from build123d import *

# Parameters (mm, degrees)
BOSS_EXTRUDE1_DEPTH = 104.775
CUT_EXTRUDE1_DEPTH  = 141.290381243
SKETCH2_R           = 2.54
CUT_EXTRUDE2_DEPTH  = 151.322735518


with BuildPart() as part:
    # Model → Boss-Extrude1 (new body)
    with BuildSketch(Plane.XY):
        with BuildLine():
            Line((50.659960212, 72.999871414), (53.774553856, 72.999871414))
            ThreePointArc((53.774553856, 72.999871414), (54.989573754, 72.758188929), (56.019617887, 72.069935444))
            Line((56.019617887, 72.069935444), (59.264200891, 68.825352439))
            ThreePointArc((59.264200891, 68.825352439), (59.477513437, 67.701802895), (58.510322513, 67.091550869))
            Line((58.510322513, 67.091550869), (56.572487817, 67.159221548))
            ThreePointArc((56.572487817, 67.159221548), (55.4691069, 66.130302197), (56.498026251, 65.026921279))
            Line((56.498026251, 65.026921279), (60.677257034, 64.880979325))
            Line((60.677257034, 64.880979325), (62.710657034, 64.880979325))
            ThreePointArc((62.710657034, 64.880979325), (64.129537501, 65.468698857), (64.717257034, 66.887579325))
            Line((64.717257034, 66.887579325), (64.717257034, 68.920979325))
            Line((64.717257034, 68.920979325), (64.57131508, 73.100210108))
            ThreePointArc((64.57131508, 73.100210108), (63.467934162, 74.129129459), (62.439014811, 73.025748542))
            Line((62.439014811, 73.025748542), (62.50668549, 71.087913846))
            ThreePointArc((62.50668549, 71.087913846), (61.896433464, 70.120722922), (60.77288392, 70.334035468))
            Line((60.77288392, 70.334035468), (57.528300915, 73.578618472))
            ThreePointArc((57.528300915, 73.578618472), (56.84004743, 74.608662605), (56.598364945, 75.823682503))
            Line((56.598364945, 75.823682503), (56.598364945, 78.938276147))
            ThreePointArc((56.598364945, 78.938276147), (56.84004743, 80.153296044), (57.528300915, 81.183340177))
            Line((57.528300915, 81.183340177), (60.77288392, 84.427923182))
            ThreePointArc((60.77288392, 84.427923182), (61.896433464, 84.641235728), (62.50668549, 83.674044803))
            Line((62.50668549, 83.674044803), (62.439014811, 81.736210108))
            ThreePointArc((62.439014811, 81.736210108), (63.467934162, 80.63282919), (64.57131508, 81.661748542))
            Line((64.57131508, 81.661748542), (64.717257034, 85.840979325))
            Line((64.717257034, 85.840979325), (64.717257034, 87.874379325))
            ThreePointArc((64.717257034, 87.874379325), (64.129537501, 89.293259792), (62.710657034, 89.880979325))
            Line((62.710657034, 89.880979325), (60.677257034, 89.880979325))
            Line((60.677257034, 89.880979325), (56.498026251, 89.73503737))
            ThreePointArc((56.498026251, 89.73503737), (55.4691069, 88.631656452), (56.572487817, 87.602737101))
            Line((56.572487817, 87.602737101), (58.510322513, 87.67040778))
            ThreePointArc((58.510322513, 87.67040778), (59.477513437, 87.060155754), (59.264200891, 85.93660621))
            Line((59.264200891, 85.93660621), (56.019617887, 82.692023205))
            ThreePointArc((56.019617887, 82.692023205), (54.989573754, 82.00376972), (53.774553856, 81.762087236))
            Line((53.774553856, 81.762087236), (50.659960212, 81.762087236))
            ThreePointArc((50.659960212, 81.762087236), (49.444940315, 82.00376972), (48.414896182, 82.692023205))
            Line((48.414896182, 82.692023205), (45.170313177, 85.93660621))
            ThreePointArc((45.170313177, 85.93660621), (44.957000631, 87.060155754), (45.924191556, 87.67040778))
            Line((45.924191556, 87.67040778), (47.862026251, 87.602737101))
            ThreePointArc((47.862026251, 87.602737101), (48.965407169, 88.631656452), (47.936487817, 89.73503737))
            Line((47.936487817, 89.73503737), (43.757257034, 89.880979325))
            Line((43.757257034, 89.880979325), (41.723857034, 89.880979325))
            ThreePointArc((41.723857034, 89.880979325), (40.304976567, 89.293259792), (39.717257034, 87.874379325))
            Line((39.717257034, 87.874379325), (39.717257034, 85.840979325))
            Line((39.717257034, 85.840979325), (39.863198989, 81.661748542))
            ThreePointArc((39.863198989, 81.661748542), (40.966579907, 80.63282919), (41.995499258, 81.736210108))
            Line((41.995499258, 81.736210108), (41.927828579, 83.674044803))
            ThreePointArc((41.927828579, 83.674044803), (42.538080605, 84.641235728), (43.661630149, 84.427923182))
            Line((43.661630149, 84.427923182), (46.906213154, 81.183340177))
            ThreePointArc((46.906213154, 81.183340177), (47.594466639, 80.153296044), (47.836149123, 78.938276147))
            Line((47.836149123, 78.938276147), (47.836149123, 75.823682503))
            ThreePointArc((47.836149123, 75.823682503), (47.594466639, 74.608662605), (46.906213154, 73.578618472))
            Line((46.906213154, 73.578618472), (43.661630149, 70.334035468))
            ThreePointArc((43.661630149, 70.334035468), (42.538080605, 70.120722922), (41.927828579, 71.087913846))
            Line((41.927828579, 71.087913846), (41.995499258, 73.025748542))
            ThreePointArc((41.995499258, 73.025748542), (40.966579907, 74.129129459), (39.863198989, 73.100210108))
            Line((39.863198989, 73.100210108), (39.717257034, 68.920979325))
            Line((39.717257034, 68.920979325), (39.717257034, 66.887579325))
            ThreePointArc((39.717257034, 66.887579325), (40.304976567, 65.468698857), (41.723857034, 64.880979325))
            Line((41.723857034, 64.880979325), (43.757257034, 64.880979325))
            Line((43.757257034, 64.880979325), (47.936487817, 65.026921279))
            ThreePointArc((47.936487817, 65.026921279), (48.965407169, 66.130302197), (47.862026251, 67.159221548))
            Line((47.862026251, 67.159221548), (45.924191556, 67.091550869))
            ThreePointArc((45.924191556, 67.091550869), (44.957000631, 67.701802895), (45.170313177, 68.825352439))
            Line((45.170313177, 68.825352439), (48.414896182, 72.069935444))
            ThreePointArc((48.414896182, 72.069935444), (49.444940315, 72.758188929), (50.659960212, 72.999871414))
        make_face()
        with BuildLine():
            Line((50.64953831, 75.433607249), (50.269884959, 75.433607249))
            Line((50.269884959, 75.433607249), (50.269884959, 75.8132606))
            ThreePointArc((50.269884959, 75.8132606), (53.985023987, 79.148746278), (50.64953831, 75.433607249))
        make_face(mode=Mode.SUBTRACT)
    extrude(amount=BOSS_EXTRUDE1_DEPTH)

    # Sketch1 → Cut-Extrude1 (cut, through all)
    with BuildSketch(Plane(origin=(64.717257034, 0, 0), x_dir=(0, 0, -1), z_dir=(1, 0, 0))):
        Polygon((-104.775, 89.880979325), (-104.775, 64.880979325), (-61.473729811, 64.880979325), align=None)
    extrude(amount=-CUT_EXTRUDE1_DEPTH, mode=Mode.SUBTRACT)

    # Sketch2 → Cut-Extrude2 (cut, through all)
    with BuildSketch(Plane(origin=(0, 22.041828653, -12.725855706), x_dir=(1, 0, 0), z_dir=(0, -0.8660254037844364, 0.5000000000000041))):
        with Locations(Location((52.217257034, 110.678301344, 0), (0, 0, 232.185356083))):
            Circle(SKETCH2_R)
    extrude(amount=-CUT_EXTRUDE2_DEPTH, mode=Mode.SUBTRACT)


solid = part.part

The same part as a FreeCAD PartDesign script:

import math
import FreeCAD as App
import Part
import Sketcher
from FreeCAD import Vector
Q = App.Units.Quantity

doc = App.newDocument("Part")
params = doc.addObject("Spreadsheet::Sheet", "Params")
for row, (alias, value) in enumerate([
    ("sketch1_radius", "0.04 in"),
    ("sketch1_radius2", "0.125 in"),
    ("sketch1_radius3", "0.042 in"),
    ("sketch1_radius4", "0.079 in"),
    ("pad1_length", "4.125 in"),
    ("sketch3_diameter", "0.2 in"),
], start=1):
    params.set(f"A{row}", alias)
    params.set(f"B{row}", "=" + value)
    params.setAlias(f"B{row}", alias)

body = doc.addObject("PartDesign::Body", "Body")

sketch1 = body.newObject("Sketcher::SketchObject", "Sketch")
sketch1.AttachmentSupport = (doc.getObject("XY_Plane"), [""])
sketch1.MapMode = "FlatFace"
sketch1.addGeometry(Part.LineSegment(Vector(50.65996, 72.999871, 0), Vector(53.774554, 72.999871, 0)), False)
sketch1.addGeometry(Part.ArcOfCircle(Part.Circle(Vector(53.774554, 69.824871, 0), Vector(0, 0, 1), 3.175), math.radians(45), math.radians(90)), False)
sketch1.addGeometry(Part.LineSegment(Vector(56.019618, 72.069935, 0), Vector(59.264201, 68.825352, 0)), False)
sketch1.addGeometry(Part.ArcOfCircle(Part.Circle(Vector(58.54578, 68.106932, 0), Vector(0, 0, 1), 1.016), math.radians(-92), math.radians(45)), False)
sketch1.addGeometry(Part.LineSegment(Vector(58.510323, 67.091551, 0), Vector(56.572488, 67.159222, 0)), False)
sketch1.addGeometry(Part.ArcOfCircle(Part.Circle(Vector(56.535257, 66.093071, 0), Vector(0, 0, 1), 1.0668), math.radians(88), math.radians(268)), False)
sketch1.addGeometry(Part.LineSegment(Vector(56.498026, 65.026921, 0), Vector(60.677257, 64.880979, 0)), False)
sketch1.addGeometry(Part.LineSegment(Vector(60.677257, 64.880979, 0), Vector(62.710657, 64.880979, 0)), False)
sketch1.addGeometry(Part.ArcOfCircle(Part.Circle(Vector(62.710657, 66.887579, 0), Vector(0, 0, 1), 2.0066), math.radians(-90), math.radians(0)), False)
sketch1.addGeometry(Part.LineSegment(Vector(64.717257, 66.887579, 0), Vector(64.717257, 68.920979, 0)), False)
sketch1.addGeometry(Part.LineSegment(Vector(64.717257, 68.920979, 0), Vector(64.571315, 73.10021, 0)), False)
sketch1.addGeometry(Part.ArcOfCircle(Part.Circle(Vector(63.505165, 73.062979, 0), Vector(0, 0, 1), 1.0668), math.radians(2), math.radians(182)), False)
sketch1.addGeometry(Part.LineSegment(Vector(62.439015, 73.025749, 0), Vector(62.506685, 71.087914, 0)), False)
sketch1.addGeometry(Part.ArcOfCircle(Part.Circle(Vector(61.491304, 71.052456, 0), Vector(0, 0, 1), 1.016), math.radians(-135), math.radians(2)), False)
sketch1.addGeometry(Part.LineSegment(Vector(60.772884, 70.334035, 0), Vector(57.528301, 73.578618, 0)), False)
sketch1.addGeometry(Part.ArcOfCircle(Part.Circle(Vector(59.773365, 75.823683, 0), Vector(0, 0, 1), 3.175), math.radians(-180), math.radians(-135)), False)
sketch1.addGeometry(Part.LineSegment(Vector(56.598365, 75.823683, 0), Vector(56.598365, 78.938276, 0)), False)
sketch1.addGeometry(Part.ArcOfCircle(Part.Circle(Vector(59.773365, 78.938276, 0), Vector(0, 0, 1), 3.175), math.radians(135), math.radians(180)), False)
sketch1.addGeometry(Part.LineSegment(Vector(57.528301, 81.18334, 0), Vector(60.772884, 84.427923, 0)), False)
sketch1.addGeometry(Part.ArcOfCircle(Part.Circle(Vector(61.491304, 83.709503, 0), Vector(0, 0, 1), 1.016), math.radians(-2), math.radians(135)), False)
sketch1.addGeometry(Part.LineSegment(Vector(62.506685, 83.674045, 0), Vector(62.439015, 81.73621, 0)), False)
sketch1.addGeometry(Part.ArcOfCircle(Part.Circle(Vector(63.505165, 81.698979, 0), Vector(0, 0, 1), 1.0668), math.radians(178), math.radians(358)), False)
sketch1.addGeometry(Part.LineSegment(Vector(64.571315, 81.661749, 0), Vector(64.717257, 85.840979, 0)), False)
sketch1.addGeometry(Part.LineSegment(Vector(64.717257, 85.840979, 0), Vector(64.717257, 87.874379, 0)), False)
sketch1.addGeometry(Part.ArcOfCircle(Part.Circle(Vector(62.710657, 87.874379, 0), Vector(0, 0, 1), 2.0066), math.radians(0), math.radians(90)), False)
sketch1.addGeometry(Part.LineSegment(Vector(62.710657, 89.880979, 0), Vector(60.677257, 89.880979, 0)), False)
sketch1.addGeometry(Part.LineSegment(Vector(60.677257, 89.880979, 0), Vector(56.498026, 89.735037, 0)), False)
sketch1.addGeometry(Part.ArcOfCircle(Part.Circle(Vector(56.535257, 88.668887, 0), Vector(0, 0, 1), 1.0668), math.radians(92), math.radians(272)), False)
sketch1.addGeometry(Part.LineSegment(Vector(56.572488, 87.602737, 0), Vector(58.510323, 87.670408, 0)), False)
sketch1.addGeometry(Part.ArcOfCircle(Part.Circle(Vector(58.54578, 86.655027, 0), Vector(0, 0, 1), 1.016), math.radians(-45), math.radians(92)), False)
sketch1.addGeometry(Part.LineSegment(Vector(59.264201, 85.936606, 0), Vector(56.019618, 82.692023, 0)), False)
sketch1.addGeometry(Part.ArcOfCircle(Part.Circle(Vector(53.774554, 84.937087, 0), Vector(0, 0, 1), 3.175), math.radians(-90), math.radians(-45)), False)
sketch1.addGeometry(Part.LineSegment(Vector(53.774554, 81.762087, 0), Vector(50.65996, 81.762087, 0)), False)
sketch1.addGeometry(Part.ArcOfCircle(Part.Circle(Vector(50.65996, 84.937087, 0), Vector(0, 0, 1), 3.175), math.radians(-135), math.radians(-90)), False)
sketch1.addGeometry(Part.LineSegment(Vector(48.414896, 82.692023, 0), Vector(45.170313, 85.936606, 0)), False)
sketch1.addGeometry(Part.ArcOfCircle(Part.Circle(Vector(45.888734, 86.655027, 0), Vector(0, 0, 1), 1.016), math.radians(88), math.radians(225)), False)
sketch1.addGeometry(Part.LineSegment(Vector(45.924192, 87.670408, 0), Vector(47.862026, 87.602737, 0)), False)
sketch1.addGeometry(Part.ArcOfCircle(Part.Circle(Vector(47.899257, 88.668887, 0), Vector(0, 0, 1), 1.0668), math.radians(-92), math.radians(88)), False)
sketch1.addGeometry(Part.LineSegment(Vector(47.936488, 89.735037, 0), Vector(43.757257, 89.880979, 0)), False)
sketch1.addGeometry(Part.LineSegment(Vector(43.757257, 89.880979, 0), Vector(41.723857, 89.880979, 0)), False)
sketch1.addGeometry(Part.ArcOfCircle(Part.Circle(Vector(41.723857, 87.874379, 0), Vector(0, 0, 1), 2.0066), math.radians(90), math.radians(180)), False)
sketch1.addGeometry(Part.LineSegment(Vector(39.717257, 87.874379, 0), Vector(39.717257, 85.840979, 0)), False)
sketch1.addGeometry(Part.LineSegment(Vector(39.717257, 85.840979, 0), Vector(39.863199, 81.661749, 0)), False)
sketch1.addGeometry(Part.ArcOfCircle(Part.Circle(Vector(40.929349, 81.698979, 0), Vector(0, 0, 1), 1.0668), math.radians(-178), math.radians(2)), False)
sketch1.addGeometry(Part.LineSegment(Vector(41.995499, 81.73621, 0), Vector(41.927829, 83.674045, 0)), False)
sketch1.addGeometry(Part.ArcOfCircle(Part.Circle(Vector(42.94321, 83.709503, 0), Vector(0, 0, 1), 1.016), math.radians(45), math.radians(182)), False)
sketch1.addGeometry(Part.LineSegment(Vector(43.66163, 84.427923, 0), Vector(46.906213, 81.18334, 0)), False)
sketch1.addGeometry(Part.ArcOfCircle(Part.Circle(Vector(44.661149, 78.938276, 0), Vector(0, 0, 1), 3.175), math.radians(0), math.radians(45)), False)
sketch1.addGeometry(Part.LineSegment(Vector(47.836149, 78.938276, 0), Vector(47.836149, 75.823683, 0)), False)
sketch1.addGeometry(Part.ArcOfCircle(Part.Circle(Vector(44.661149, 75.823683, 0), Vector(0, 0, 1), 3.175), math.radians(-45), math.radians(0)), False)
sketch1.addGeometry(Part.LineSegment(Vector(46.906213, 73.578618, 0), Vector(43.66163, 70.334035, 0)), False)
sketch1.addGeometry(Part.ArcOfCircle(Part.Circle(Vector(42.94321, 71.052456, 0), Vector(0, 0, 1), 1.016), math.radians(178), math.radians(315)), False)
sketch1.addGeometry(Part.LineSegment(Vector(41.927829, 71.087914, 0), Vector(41.995499, 73.025749, 0)), False)
sketch1.addGeometry(Part.ArcOfCircle(Part.Circle(Vector(40.929349, 73.062979, 0), Vector(0, 0, 1), 1.0668), math.radians(-2), math.radians(178)), False)
sketch1.addGeometry(Part.LineSegment(Vector(39.863199, 73.10021, 0), Vector(39.717257, 68.920979, 0)), False)
sketch1.addGeometry(Part.LineSegment(Vector(39.717257, 68.920979, 0), Vector(39.717257, 66.887579, 0)), False)
sketch1.addGeometry(Part.ArcOfCircle(Part.Circle(Vector(41.723857, 66.887579, 0), Vector(0, 0, 1), 2.0066), math.radians(180), math.radians(270)), False)
sketch1.addGeometry(Part.LineSegment(Vector(41.723857, 64.880979, 0), Vector(43.757257, 64.880979, 0)), False)
sketch1.addGeometry(Part.LineSegment(Vector(43.757257, 64.880979, 0), Vector(47.936488, 65.026921, 0)), False)
sketch1.addGeometry(Part.ArcOfCircle(Part.Circle(Vector(47.899257, 66.093071, 0), Vector(0, 0, 1), 1.0668), math.radians(-88), math.radians(92)), False)
sketch1.addGeometry(Part.LineSegment(Vector(47.862026, 67.159222, 0), Vector(45.924192, 67.091551, 0)), False)
sketch1.addGeometry(Part.ArcOfCircle(Part.Circle(Vector(45.888734, 68.106932, 0), Vector(0, 0, 1), 1.016), math.radians(135), math.radians(272)), False)
sketch1.addGeometry(Part.LineSegment(Vector(45.170313, 68.825352, 0), Vector(48.414896, 72.069935, 0)), False)
sketch1.addGeometry(Part.ArcOfCircle(Part.Circle(Vector(50.65996, 69.824871, 0), Vector(0, 0, 1), 3.175), math.radians(90), math.radians(135)), False)
sketch1.addGeometry(Part.ArcOfCircle(Part.Circle(Vector(52.217257, 77.380979, 0), Vector(0, 0, 1), 2.5), math.radians(-128.835568), math.radians(218.835568)), False)
sketch1.addGeometry(Part.LineSegment(Vector(50.649538, 75.433607, 0), Vector(50.269885, 75.433607, 0)), False)
sketch1.addGeometry(Part.LineSegment(Vector(50.269885, 75.433607, 0), Vector(50.269885, 75.813261, 0)), False)
sketch1.addConstraint(Sketcher.Constraint("Tangent", 0, 2, 1, 2))
sketch1.addConstraint(Sketcher.Constraint("Tangent", 1, 1, 2, 1))
sketch1.addConstraint(Sketcher.Constraint("Tangent", 2, 2, 3, 2))
sketch1.addConstraint(Sketcher.Constraint("Tangent", 3, 1, 4, 1))
sketch1.addConstraint(Sketcher.Constraint("Tangent", 4, 2, 5, 1))
sketch1.addConstraint(Sketcher.Constraint("Tangent", 5, 2, 6, 1))
sketch1.addConstraint(Sketcher.Constraint("Coincident", 6, 2, 7, 1))
sketch1.addConstraint(Sketcher.Constraint("Tangent", 7, 2, 8, 1))
sketch1.addConstraint(Sketcher.Constraint("Tangent", 8, 2, 9, 1))
sketch1.addConstraint(Sketcher.Constraint("Coincident", 9, 2, 10, 1))
sketch1.addConstraint(Sketcher.Constraint("Tangent", 10, 2, 11, 1))
sketch1.addConstraint(Sketcher.Constraint("Tangent", 11, 2, 12, 1))
sketch1.addConstraint(Sketcher.Constraint("Tangent", 12, 2, 13, 2))
sketch1.addConstraint(Sketcher.Constraint("Tangent", 13, 1, 14, 1))
sketch1.addConstraint(Sketcher.Constraint("Tangent", 14, 2, 15, 2))
sketch1.addConstraint(Sketcher.Constraint("Tangent", 15, 1, 16, 1))
sketch1.addConstraint(Sketcher.Constraint("Tangent", 16, 2, 17, 2))
sketch1.addConstraint(Sketcher.Constraint("Tangent", 17, 1, 18, 1))
sketch1.addConstraint(Sketcher.Constraint("Tangent", 18, 2, 19, 2))
sketch1.addConstraint(Sketcher.Constraint("Tangent", 19, 1, 20, 1))
sketch1.addConstraint(Sketcher.Constraint("Tangent", 20, 2, 21, 1))
sketch1.addConstraint(Sketcher.Constraint("Tangent", 21, 2, 22, 1))
sketch1.addConstraint(Sketcher.Constraint("Coincident", 22, 2, 23, 1))
sketch1.addConstraint(Sketcher.Constraint("Tangent", 23, 2, 24, 1))
sketch1.addConstraint(Sketcher.Constraint("Tangent", 24, 2, 25, 1))
sketch1.addConstraint(Sketcher.Constraint("Coincident", 25, 2, 26, 1))
sketch1.addConstraint(Sketcher.Constraint("Tangent", 26, 2, 27, 1))
sketch1.addConstraint(Sketcher.Constraint("Tangent", 27, 2, 28, 1))
sketch1.addConstraint(Sketcher.Constraint("Tangent", 28, 2, 29, 2))
sketch1.addConstraint(Sketcher.Constraint("Tangent", 29, 1, 30, 1))
sketch1.addConstraint(Sketcher.Constraint("Tangent", 30, 2, 31, 2))
sketch1.addConstraint(Sketcher.Constraint("Tangent", 31, 1, 32, 1))
sketch1.addConstraint(Sketcher.Constraint("Tangent", 32, 2, 33, 2))
sketch1.addConstraint(Sketcher.Constraint("Tangent", 33, 1, 34, 1))
sketch1.addConstraint(Sketcher.Constraint("Tangent", 34, 2, 35, 2))
sketch1.addConstraint(Sketcher.Constraint("Tangent", 35, 1, 36, 1))
sketch1.addConstraint(Sketcher.Constraint("Tangent", 36, 2, 37, 1))
sketch1.addConstraint(Sketcher.Constraint("Tangent", 37, 2, 38, 1))
sketch1.addConstraint(Sketcher.Constraint("Coincident", 38, 2, 39, 1))
sketch1.addConstraint(Sketcher.Constraint("Tangent", 39, 2, 40, 1))
sketch1.addConstraint(Sketcher.Constraint("Tangent", 40, 2, 41, 1))
sketch1.addConstraint(Sketcher.Constraint("Coincident", 41, 2, 42, 1))
sketch1.addConstraint(Sketcher.Constraint("Tangent", 42, 2, 43, 1))
sketch1.addConstraint(Sketcher.Constraint("Tangent", 43, 2, 44, 1))
sketch1.addConstraint(Sketcher.Constraint("Tangent", 44, 2, 45, 2))
sketch1.addConstraint(Sketcher.Constraint("Tangent", 45, 1, 46, 1))
sketch1.addConstraint(Sketcher.Constraint("Tangent", 46, 2, 47, 2))
sketch1.addConstraint(Sketcher.Constraint("Tangent", 47, 1, 48, 1))
sketch1.addConstraint(Sketcher.Constraint("Tangent", 48, 2, 49, 2))
sketch1.addConstraint(Sketcher.Constraint("Tangent", 49, 1, 50, 1))
sketch1.addConstraint(Sketcher.Constraint("Tangent", 50, 2, 51, 2))
sketch1.addConstraint(Sketcher.Constraint("Tangent", 51, 1, 52, 1))
sketch1.addConstraint(Sketcher.Constraint("Tangent", 52, 2, 53, 1))
sketch1.addConstraint(Sketcher.Constraint("Tangent", 53, 2, 54, 1))
sketch1.addConstraint(Sketcher.Constraint("Coincident", 54, 2, 55, 1))
sketch1.addConstraint(Sketcher.Constraint("Tangent", 55, 2, 56, 1))
sketch1.addConstraint(Sketcher.Constraint("Tangent", 56, 2, 57, 1))
sketch1.addConstraint(Sketcher.Constraint("Coincident", 57, 2, 58, 1))
sketch1.addConstraint(Sketcher.Constraint("Tangent", 58, 2, 59, 1))
sketch1.addConstraint(Sketcher.Constraint("Tangent", 59, 2, 60, 1))
sketch1.addConstraint(Sketcher.Constraint("Tangent", 60, 2, 61, 2))
sketch1.addConstraint(Sketcher.Constraint("Tangent", 61, 1, 62, 1))
sketch1.addConstraint(Sketcher.Constraint("Tangent", 62, 2, 63, 2))
sketch1.addConstraint(Sketcher.Constraint("Tangent", 63, 1, 0, 1))
sketch1.addConstraint(Sketcher.Constraint("Coincident", 64, 1, 65, 1))
sketch1.addConstraint(Sketcher.Constraint("Coincident", 65, 2, 66, 1))
sketch1.addConstraint(Sketcher.Constraint("Coincident", 66, 2, 64, 2))
sketch1.addConstraint(Sketcher.Constraint("Horizontal", 0))
sketch1.addConstraint(Sketcher.Constraint("Horizontal", 7))
sketch1.addConstraint(Sketcher.Constraint("Vertical", 9))
sketch1.addConstraint(Sketcher.Constraint("Vertical", 16))
sketch1.addConstraint(Sketcher.Constraint("Vertical", 23))
sketch1.addConstraint(Sketcher.Constraint("Horizontal", 25))
sketch1.addConstraint(Sketcher.Constraint("Horizontal", 32))
sketch1.addConstraint(Sketcher.Constraint("Horizontal", 39))
sketch1.addConstraint(Sketcher.Constraint("Vertical", 41))
sketch1.addConstraint(Sketcher.Constraint("Vertical", 48))
sketch1.addConstraint(Sketcher.Constraint("Vertical", 55))
sketch1.addConstraint(Sketcher.Constraint("Horizontal", 57))
sketch1.addConstraint(Sketcher.Constraint("Horizontal", 65))
sketch1.addConstraint(Sketcher.Constraint("Vertical", 66))
sketch1.addConstraint(Sketcher.Constraint("Equal", 5, 11))
sketch1.addConstraint(Sketcher.Constraint("Equal", 3, 13))
sketch1.addConstraint(Sketcher.Constraint("Equal", 1, 15))
sketch1.addConstraint(Sketcher.Constraint("Equal", 15, 17))
sketch1.addConstraint(Sketcher.Constraint("Equal", 13, 19))
sketch1.addConstraint(Sketcher.Constraint("Equal", 11, 21))
sketch1.addConstraint(Sketcher.Constraint("Equal", 8, 24))
sketch1.addConstraint(Sketcher.Constraint("Equal", 21, 27))
sketch1.addConstraint(Sketcher.Constraint("Equal", 19, 29))
sketch1.addConstraint(Sketcher.Constraint("Equal", 17, 31))
sketch1.addConstraint(Sketcher.Constraint("Equal", 31, 33))
sketch1.addConstraint(Sketcher.Constraint("Equal", 29, 35))
sketch1.addConstraint(Sketcher.Constraint("Equal", 27, 37))
sketch1.addConstraint(Sketcher.Constraint("Equal", 24, 40))
sketch1.addConstraint(Sketcher.Constraint("Equal", 37, 43))
sketch1.addConstraint(Sketcher.Constraint("Equal", 35, 45))
sketch1.addConstraint(Sketcher.Constraint("Equal", 33, 47))
sketch1.addConstraint(Sketcher.Constraint("Equal", 47, 49))
sketch1.addConstraint(Sketcher.Constraint("Equal", 45, 51))
sketch1.addConstraint(Sketcher.Constraint("Equal", 43, 53))
sketch1.addConstraint(Sketcher.Constraint("Equal", 40, 56))
sketch1.addConstraint(Sketcher.Constraint("Equal", 53, 59))
sketch1.addConstraint(Sketcher.Constraint("Equal", 51, 61))
sketch1.addConstraint(Sketcher.Constraint("Equal", 49, 63))
sketch1.addConstraint(Sketcher.Constraint("Parallel", 4, 6))
sketch1.addConstraint(Sketcher.Constraint("Parallel", 10, 12))
sketch1.addConstraint(Sketcher.Constraint("Parallel", 2, 14))
sketch1.addConstraint(Sketcher.Constraint("Perpendicular", 14, 18))
sketch1.addConstraint(Sketcher.Constraint("Perpendicular", 6, 20))
sketch1.addConstraint(Sketcher.Constraint("Parallel", 20, 22))
sketch1.addConstraint(Sketcher.Constraint("Perpendicular", 12, 26))
sketch1.addConstraint(Sketcher.Constraint("Parallel", 26, 28))
sketch1.addConstraint(Sketcher.Constraint("Parallel", 18, 30))
sketch1.addConstraint(Sketcher.Constraint("Perpendicular", 30, 34))
sketch1.addConstraint(Sketcher.Constraint("Perpendicular", 22, 36))
sketch1.addConstraint(Sketcher.Constraint("Parallel", 36, 38))
sketch1.addConstraint(Sketcher.Constraint("Perpendicular", 28, 42))
sketch1.addConstraint(Sketcher.Constraint("Parallel", 42, 44))
sketch1.addConstraint(Sketcher.Constraint("Parallel", 34, 46))
sketch1.addConstraint(Sketcher.Constraint("Perpendicular", 46, 50))
sketch1.addConstraint(Sketcher.Constraint("Perpendicular", 38, 52))
sketch1.addConstraint(Sketcher.Constraint("Parallel", 52, 54))
sketch1.addConstraint(Sketcher.Constraint("Perpendicular", 44, 58))
sketch1.addConstraint(Sketcher.Constraint("Parallel", 58, 60))
sketch1.addConstraint(Sketcher.Constraint("Parallel", 50, 62))
sketch1.addConstraint(Sketcher.Constraint("Horizontal", 29, 3, 35, 3))
sketch1.addConstraint(Sketcher.Constraint("Horizontal", 27, 3, 37, 3))
sketch1.addConstraint(Sketcher.Constraint("Horizontal", 24, 3, 40, 3))
sketch1.addConstraint(Sketcher.Constraint("Horizontal", 21, 3, 43, 3))
sketch1.addConstraint(Sketcher.Constraint("Horizontal", 19, 3, 45, 3))
sketch1.addConstraint(Sketcher.Constraint("Horizontal", 17, 3, 47, 3))
sketch1.addConstraint(Sketcher.Constraint("Horizontal", 15, 3, 49, 3))
sketch1.addConstraint(Sketcher.Constraint("Horizontal", 13, 3, 51, 3))
sketch1.addConstraint(Sketcher.Constraint("Horizontal", 11, 3, 53, 3))
sketch1.addConstraint(Sketcher.Constraint("Horizontal", 8, 3, 56, 3))
sketch1.addConstraint(Sketcher.Constraint("Horizontal", 5, 3, 59, 3))
sketch1.addConstraint(Sketcher.Constraint("Horizontal", 3, 3, 61, 3))
sketch1.addConstraint(Sketcher.Constraint("Horizontal", 30, 2, 33, 1))
sketch1.addConstraint(Sketcher.Constraint("Horizontal", 22, 2, 41, 2))
sketch1.addConstraint(Sketcher.Constraint("Horizontal", 21, 2, 42, 2))
sketch1.addConstraint(Sketcher.Constraint("Horizontal", 9, 2, 54, 2))
sketch1.addConstraint(Sketcher.Constraint("Vertical", 13, 3, 19, 3))
sketch1.addConstraint(Sketcher.Constraint("Vertical", 11, 3, 21, 3))
sketch1.addConstraint(Sketcher.Constraint("Vertical", 8, 3, 24, 3))
sketch1.addConstraint(Sketcher.Constraint("Vertical", 5, 3, 27, 3))
sketch1.addConstraint(Sketcher.Constraint("Vertical", 3, 3, 29, 3))
sketch1.addConstraint(Sketcher.Constraint("Vertical", 1, 3, 31, 3))
sketch1.addConstraint(Sketcher.Constraint("Vertical", 37, 3, 59, 3))
sketch1.addConstraint(Sketcher.Constraint("Vertical", 6, 2, 25, 2))
sketch1.addConstraint(Sketcher.Constraint("Equal", 25, 39))
sketch1.addConstraint(Sketcher.Constraint("Equal", 57, 9))
sketch1.addConstraint(Sketcher.Constraint("Equal", 32, 16))
sketch1.addConstraint(Sketcher.Constraint("Equal", 9, 23))
sketch1.addConstraint(Sketcher.Constraint("Equal", 65, 66))
sketch1.addConstraint(Sketcher.Constraint("Equal", 6, 10))
sketch1.addConstraint(Sketcher.Constraint("Equal", 4, 12))
sketch1.addConstraint(Sketcher.Constraint("Equal", 2, 14))
sketch1.addConstraint(Sketcher.Constraint("Radius", 3, Q("0.04 in")))
sketch1.addConstraint(Sketcher.Constraint("Angle", 4, Q("178 deg")))
sketch1.addConstraint(Sketcher.Constraint("Radius", 1, Q("0.125 in")))
sketch1.addConstraint(Sketcher.Constraint("Radius", 5, Q("0.042 in")))
sketch1.addConstraint(Sketcher.Constraint("Radius", 8, Q("0.079 in")))
sketch1.addConstraint(Sketcher.Constraint("Radius", 64, Q("2.5 mm")))
sketch1.addConstraint(Sketcher.Constraint("DistanceX", 7, 1, 7, 2, Q("2.0334 mm")))
sketch1.addConstraint(Sketcher.Constraint("DistanceX", -1, 1, 2, 2, Q("59.264201 mm")))
sketch1.addConstraint(Sketcher.Constraint("DistanceX", -1, 1, 14, 2, Q("57.528301 mm")))
sketch1.addConstraint(Sketcher.Constraint("DistanceX", -1, 1, 42, 2, Q("39.863199 mm")))
sketch1.addConstraint(Sketcher.Constraint("Distance", 6, Q("4.181778 mm")))
sketch1.addConstraint(Sketcher.Constraint("DistanceX", 0, 1, 0, 2, Q("3.114594 mm")))
sketch1.addConstraint(Sketcher.Constraint("DistanceX", 65, 2, 65, 1, Q("0.379653 mm")))
sketch1.addConstraint(Sketcher.Constraint("DistanceY", -1, 1, 1, 3, Q("69.824871 mm")))
sketch1.addConstraint(Sketcher.Constraint("DistanceY", -1, 1, 64, 3, Q("77.380979 mm")))
sketch1.addConstraint(Sketcher.Constraint("DistanceX", -1, 1, 64, 1, Q("50.649538 mm")))
sketch1.setExpression("Constraints[158]", "Params.sketch1_radius")
sketch1.setExpression("Constraints[160]", "Params.sketch1_radius2")
sketch1.setExpression("Constraints[161]", "Params.sketch1_radius3")
sketch1.setExpression("Constraints[162]", "Params.sketch1_radius4")
pad1 = body.newObject("PartDesign::Pad", "Pad")
pad1.Profile = sketch1
pad1.setExpression("Length", "Params.pad1_length")

sketch2 = body.newObject("Sketcher::SketchObject", "Sketch001")
sketch2.AttachmentSupport = (doc.getObject("YZ_Plane"), [""])
sketch2.MapMode = "FlatFace"
sketch2.AttachmentOffset = App.Placement(Vector(0, 0, 64.717257), App.Rotation())
sketch2.addGeometry(Part.LineSegment(Vector(89.880979, 104.775, 0), Vector(64.880979, 104.775, 0)), False)
sketch2.addGeometry(Part.LineSegment(Vector(64.880979, 104.775, 0), Vector(64.880979, 61.47373, 0)), False)
sketch2.addGeometry(Part.LineSegment(Vector(64.880979, 61.47373, 0), Vector(89.880979, 104.775, 0)), False)
sketch2.addConstraint(Sketcher.Constraint("Coincident", 0, 2, 1, 1))
sketch2.addConstraint(Sketcher.Constraint("Coincident", 1, 2, 2, 1))
sketch2.addConstraint(Sketcher.Constraint("Coincident", 2, 2, 0, 1))
sketch2.addConstraint(Sketcher.Constraint("Horizontal", 0))
sketch2.addConstraint(Sketcher.Constraint("Vertical", 1))
sketch2.addConstraint(Sketcher.Constraint("Angle", 2, Q("60 deg")))
sketch2.addConstraint(Sketcher.Constraint("DistanceY", -1, 1, 0, 2, Q("4.125 in")))
sketch2.addConstraint(Sketcher.Constraint("DistanceX", 0, 2, 0, 1, Q("25 mm")))
sketch2.addConstraint(Sketcher.Constraint("DistanceX", -1, 1, 0, 2, Q("64.880979 mm")))
pocket1 = body.newObject("PartDesign::Pocket", "Pocket")
pocket1.Profile = sketch2
pocket1.Type = "ThroughAll"

sketch3 = body.newObject("Sketcher::SketchObject", "Sketch002")
sketch3.Placement = App.Placement(Vector(0, 22.041829, -12.725856), App.Rotation(Vector(1, 0, 0), Vector(0, 0.5, 0.866025404), Vector(0, -0.866025404, 0.5), "ZXY"))
sketch3.addGeometry(Part.Circle(Vector(52.217257, 110.678301, 0), Vector(0, 0, 1), 2.54), False)
sketch3.addConstraint(Sketcher.Constraint("Diameter", 0, Q("0.2 in")))
sketch3.addConstraint(Sketcher.Constraint("DistanceY", -1, 1, 0, 3, Q("110.678301 mm")))
sketch3.addConstraint(Sketcher.Constraint("DistanceX", -1, 1, 0, 3, Q("52.217257 mm")))
sketch3.setExpression("Constraints[0]", "Params.sketch3_diameter")
pocket2 = body.newObject("PartDesign::Pocket", "Pocket001")
pocket2.Profile = sketch3
pocket2.Type = "ThroughAll"

doc.recompute()
